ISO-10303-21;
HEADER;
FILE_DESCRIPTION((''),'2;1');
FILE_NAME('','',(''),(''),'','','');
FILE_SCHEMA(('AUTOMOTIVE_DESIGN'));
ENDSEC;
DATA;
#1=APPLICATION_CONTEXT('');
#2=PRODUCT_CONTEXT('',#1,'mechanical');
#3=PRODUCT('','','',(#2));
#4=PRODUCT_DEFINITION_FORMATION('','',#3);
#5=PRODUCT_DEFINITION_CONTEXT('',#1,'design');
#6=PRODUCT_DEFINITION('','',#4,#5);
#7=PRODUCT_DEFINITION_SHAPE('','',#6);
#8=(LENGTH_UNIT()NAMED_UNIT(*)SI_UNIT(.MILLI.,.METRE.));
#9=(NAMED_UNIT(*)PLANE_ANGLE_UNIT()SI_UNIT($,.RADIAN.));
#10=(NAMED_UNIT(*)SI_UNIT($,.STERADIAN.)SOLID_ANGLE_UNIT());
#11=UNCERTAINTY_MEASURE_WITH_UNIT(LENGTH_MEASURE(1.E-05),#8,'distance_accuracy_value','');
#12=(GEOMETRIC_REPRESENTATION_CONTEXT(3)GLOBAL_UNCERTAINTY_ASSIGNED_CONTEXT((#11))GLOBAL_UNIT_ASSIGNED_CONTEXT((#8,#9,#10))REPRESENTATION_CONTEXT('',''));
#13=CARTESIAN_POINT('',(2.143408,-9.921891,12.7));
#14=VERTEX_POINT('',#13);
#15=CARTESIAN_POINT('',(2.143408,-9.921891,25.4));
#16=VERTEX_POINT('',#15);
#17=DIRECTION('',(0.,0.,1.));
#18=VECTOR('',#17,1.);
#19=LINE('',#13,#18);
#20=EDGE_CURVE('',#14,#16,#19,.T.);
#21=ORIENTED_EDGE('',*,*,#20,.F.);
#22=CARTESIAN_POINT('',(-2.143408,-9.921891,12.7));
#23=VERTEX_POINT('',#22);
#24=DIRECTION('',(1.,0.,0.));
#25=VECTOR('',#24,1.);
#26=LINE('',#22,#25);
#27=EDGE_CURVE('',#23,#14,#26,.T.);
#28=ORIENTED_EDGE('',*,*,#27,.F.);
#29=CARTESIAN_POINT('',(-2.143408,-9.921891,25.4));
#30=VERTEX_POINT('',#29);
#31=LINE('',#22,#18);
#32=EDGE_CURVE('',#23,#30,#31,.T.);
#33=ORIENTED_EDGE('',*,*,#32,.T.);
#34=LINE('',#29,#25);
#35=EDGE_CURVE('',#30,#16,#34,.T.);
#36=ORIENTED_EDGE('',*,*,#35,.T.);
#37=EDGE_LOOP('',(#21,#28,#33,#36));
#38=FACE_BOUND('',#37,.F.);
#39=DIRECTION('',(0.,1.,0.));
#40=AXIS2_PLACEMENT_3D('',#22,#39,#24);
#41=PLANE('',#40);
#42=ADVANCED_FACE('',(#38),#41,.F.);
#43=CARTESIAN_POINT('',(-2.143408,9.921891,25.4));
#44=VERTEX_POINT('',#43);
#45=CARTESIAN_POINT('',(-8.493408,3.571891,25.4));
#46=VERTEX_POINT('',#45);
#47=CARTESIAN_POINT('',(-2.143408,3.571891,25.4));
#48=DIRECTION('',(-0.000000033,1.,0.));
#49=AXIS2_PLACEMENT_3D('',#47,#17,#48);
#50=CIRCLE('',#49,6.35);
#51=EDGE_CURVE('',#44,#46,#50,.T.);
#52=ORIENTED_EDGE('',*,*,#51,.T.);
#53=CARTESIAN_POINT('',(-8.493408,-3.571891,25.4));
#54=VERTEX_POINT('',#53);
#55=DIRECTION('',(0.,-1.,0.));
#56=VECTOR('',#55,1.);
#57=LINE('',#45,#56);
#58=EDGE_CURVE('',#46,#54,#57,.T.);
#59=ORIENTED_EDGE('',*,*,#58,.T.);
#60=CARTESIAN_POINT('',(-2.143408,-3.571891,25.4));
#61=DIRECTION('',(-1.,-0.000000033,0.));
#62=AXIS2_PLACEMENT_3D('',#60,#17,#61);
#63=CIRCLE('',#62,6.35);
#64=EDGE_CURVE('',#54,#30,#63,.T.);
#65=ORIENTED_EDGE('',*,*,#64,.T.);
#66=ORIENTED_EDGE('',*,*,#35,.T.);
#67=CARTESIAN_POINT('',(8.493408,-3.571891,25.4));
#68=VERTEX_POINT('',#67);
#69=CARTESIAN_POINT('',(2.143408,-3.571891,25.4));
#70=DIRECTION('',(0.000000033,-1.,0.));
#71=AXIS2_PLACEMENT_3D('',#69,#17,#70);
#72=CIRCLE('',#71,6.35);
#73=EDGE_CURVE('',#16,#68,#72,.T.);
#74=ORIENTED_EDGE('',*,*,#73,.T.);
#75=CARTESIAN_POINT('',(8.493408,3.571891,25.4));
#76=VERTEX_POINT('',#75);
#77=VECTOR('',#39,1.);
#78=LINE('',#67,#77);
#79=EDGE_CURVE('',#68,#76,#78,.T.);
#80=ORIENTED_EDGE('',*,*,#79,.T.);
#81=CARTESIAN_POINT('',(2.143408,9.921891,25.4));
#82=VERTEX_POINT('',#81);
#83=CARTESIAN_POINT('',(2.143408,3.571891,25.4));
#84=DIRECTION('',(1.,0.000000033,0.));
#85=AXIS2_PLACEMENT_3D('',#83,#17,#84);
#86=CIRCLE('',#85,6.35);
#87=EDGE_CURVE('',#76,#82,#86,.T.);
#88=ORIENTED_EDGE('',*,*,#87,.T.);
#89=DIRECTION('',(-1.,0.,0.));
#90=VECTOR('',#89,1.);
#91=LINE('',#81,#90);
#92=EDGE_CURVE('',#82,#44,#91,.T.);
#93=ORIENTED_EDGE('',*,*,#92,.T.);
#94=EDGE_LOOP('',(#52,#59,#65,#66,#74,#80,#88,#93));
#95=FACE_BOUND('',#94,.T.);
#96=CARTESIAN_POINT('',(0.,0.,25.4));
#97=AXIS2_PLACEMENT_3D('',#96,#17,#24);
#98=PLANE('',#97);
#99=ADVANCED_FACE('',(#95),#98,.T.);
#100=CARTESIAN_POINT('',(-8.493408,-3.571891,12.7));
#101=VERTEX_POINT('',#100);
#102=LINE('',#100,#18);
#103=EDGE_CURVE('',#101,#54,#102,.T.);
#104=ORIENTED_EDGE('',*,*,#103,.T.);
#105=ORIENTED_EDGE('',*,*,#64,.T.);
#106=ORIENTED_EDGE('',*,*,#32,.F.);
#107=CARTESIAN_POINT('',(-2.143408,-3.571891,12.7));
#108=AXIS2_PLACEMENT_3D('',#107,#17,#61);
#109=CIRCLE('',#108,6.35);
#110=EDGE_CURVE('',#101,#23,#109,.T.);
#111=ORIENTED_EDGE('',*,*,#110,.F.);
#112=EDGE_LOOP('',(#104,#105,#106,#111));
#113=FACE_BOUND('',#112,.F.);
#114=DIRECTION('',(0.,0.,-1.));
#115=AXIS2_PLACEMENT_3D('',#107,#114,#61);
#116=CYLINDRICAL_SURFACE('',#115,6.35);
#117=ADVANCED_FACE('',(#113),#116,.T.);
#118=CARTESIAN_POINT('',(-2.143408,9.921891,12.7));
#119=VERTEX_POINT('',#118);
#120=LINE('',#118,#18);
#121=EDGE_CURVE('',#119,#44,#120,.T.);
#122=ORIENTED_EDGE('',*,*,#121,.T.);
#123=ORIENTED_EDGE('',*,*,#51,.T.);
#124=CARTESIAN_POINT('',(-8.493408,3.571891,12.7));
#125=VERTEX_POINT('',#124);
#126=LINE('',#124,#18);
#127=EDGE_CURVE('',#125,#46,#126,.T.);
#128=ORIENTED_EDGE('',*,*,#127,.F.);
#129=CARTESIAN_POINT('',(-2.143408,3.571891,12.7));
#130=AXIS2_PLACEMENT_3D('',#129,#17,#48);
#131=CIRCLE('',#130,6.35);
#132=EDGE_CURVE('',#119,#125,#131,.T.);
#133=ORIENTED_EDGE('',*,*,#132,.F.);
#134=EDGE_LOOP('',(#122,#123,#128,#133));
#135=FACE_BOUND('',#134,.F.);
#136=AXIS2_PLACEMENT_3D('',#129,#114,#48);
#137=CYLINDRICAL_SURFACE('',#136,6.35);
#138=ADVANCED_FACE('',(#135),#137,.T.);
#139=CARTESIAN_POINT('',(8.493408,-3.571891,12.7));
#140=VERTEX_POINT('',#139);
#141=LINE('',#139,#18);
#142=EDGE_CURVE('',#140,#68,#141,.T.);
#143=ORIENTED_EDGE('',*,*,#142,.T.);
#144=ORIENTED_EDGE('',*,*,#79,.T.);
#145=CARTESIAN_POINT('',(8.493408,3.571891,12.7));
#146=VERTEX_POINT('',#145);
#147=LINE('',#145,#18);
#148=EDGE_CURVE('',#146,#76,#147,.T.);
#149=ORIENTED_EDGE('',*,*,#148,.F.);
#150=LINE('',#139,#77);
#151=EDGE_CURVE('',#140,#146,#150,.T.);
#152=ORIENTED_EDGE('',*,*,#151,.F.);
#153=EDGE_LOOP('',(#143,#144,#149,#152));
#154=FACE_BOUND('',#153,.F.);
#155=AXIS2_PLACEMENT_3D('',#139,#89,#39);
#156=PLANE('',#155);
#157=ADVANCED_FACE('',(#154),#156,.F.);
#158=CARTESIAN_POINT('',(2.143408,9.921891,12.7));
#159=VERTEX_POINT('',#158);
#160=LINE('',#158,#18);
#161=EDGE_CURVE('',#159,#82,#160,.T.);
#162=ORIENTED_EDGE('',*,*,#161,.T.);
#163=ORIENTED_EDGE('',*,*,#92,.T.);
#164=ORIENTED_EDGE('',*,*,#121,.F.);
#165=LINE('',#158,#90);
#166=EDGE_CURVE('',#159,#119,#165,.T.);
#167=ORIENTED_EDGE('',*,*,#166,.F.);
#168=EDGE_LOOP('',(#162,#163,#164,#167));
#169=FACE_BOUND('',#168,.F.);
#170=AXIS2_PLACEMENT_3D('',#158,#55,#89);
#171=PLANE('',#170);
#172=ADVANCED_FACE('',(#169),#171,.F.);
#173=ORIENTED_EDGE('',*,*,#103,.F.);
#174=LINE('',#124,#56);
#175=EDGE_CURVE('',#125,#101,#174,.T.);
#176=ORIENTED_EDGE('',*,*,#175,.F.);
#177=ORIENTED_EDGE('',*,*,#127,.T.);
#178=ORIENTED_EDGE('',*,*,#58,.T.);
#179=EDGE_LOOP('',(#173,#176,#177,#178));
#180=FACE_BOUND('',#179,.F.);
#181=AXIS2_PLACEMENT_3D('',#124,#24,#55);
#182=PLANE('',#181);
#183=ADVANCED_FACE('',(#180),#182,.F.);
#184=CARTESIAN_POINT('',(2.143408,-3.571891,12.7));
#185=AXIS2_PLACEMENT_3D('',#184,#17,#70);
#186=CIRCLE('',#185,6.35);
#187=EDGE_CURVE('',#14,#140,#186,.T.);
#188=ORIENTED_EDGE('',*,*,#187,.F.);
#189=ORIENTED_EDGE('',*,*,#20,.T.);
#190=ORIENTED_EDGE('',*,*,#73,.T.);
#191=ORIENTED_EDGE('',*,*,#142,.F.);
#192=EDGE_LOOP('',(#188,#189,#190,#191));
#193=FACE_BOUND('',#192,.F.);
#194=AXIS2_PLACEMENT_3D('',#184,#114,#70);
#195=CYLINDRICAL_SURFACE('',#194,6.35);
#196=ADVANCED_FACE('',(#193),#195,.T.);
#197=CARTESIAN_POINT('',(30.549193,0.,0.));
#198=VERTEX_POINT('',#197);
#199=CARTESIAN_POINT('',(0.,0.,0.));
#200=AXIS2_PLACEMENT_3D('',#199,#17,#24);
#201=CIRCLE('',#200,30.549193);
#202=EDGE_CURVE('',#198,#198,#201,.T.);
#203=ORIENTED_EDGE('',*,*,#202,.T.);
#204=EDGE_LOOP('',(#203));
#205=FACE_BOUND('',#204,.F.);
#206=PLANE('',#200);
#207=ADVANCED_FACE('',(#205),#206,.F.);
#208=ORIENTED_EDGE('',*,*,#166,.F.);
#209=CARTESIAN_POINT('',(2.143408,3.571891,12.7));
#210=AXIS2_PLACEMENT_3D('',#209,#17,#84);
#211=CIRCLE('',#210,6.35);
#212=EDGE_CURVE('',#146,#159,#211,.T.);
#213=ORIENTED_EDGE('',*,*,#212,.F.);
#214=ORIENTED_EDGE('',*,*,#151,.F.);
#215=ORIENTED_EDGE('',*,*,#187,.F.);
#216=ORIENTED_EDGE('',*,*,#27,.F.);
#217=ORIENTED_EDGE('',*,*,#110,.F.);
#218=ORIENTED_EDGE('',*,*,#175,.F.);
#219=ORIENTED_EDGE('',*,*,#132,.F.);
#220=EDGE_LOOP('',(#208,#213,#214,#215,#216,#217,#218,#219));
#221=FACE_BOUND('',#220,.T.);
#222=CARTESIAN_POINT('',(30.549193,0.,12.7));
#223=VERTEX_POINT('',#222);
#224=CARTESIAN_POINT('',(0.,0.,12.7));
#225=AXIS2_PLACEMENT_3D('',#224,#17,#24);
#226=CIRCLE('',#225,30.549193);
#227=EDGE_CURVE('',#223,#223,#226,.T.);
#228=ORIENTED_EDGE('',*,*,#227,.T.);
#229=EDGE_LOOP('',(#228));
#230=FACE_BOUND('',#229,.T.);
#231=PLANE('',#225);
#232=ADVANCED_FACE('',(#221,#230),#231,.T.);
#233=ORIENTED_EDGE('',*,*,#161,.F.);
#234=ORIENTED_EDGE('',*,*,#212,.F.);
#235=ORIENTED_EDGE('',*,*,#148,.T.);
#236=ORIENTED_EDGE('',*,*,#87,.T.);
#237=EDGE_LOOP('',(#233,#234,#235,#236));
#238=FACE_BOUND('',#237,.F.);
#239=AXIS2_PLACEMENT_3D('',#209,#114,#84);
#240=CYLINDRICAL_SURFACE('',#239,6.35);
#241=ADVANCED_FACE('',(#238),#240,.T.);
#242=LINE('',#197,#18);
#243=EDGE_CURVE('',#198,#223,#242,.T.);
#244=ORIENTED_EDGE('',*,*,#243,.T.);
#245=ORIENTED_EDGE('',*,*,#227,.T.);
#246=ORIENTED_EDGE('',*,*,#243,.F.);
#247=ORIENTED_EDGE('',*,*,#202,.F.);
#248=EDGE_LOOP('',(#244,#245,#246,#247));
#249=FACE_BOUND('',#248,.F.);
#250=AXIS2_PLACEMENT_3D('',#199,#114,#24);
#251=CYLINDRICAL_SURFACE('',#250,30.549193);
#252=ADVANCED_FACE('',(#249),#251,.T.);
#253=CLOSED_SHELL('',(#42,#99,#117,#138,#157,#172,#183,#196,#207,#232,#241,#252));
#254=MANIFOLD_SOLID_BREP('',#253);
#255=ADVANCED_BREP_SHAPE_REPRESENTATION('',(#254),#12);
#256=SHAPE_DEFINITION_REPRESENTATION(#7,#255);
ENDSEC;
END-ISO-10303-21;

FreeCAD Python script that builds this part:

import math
import FreeCAD as App
import Part
import Sketcher

V = App.Vector
Q = App.Units.Quantity

doc = App.newDocument("Part")
body = doc.addObject("PartDesign::Body", "Body")

# Sketch on XY plane
sketch1 = doc.addObject("Sketcher::SketchObject", "Sketch")
body.addObject(sketch1)
sketch1.AttachmentSupport = (doc.XY_Plane, [""])
sketch1.MapMode = "FlatFace"
sketch1.addGeometry(Part.Circle(V(0, 0, 0), V(0, 0, 1), 31), False)
sketch1.addConstraint(Sketcher.Constraint("Coincident", 0, 3, -1, 1))
sketch1.addConstraint(Sketcher.Constraint("Diameter", 0, Q("61.098386 mm")))
pad1 = doc.addObject("PartDesign::Pad", "Pad")
body.addObject(pad1)
pad1.Profile = sketch1
pad1.Length = Q("0.5 in")

# Sketch on XY plane
sketch2 = doc.addObject("Sketcher::SketchObject", "Sketch001")
body.addObject(sketch2)
sketch2.AttachmentSupport = (doc.XY_Plane, [""])
sketch2.MapMode = "FlatFace"
sketch2.AttachmentOffset = App.Placement(V(0, 0, 0.5 * 25.4), App.Rotation())
sketch2.addGeometry(Part.ArcOfCircle(Part.Circle(V(2.1, 3.6, 0), V(0, 0, 1), 6.4), math.radians(0), math.radians(90)), False)
sketch2.addGeometry(Part.LineSegment(V(2.1, 9.9, 0), V(-2.1, 9.9, 0)), False)
sketch2.addGeometry(Part.ArcOfCircle(Part.Circle(V(-2.1, 3.6, 0), V(0, 0, 1), 6.4), math.radians(90), math.radians(180)), False)
sketch2.addGeometry(Part.LineSegment(V(-8.5, 3.6, 0), V(-8.5, -3.6, 0)), False)
sketch2.addGeometry(Part.ArcOfCircle(Part.Circle(V(-2.1, -3.6, 0), V(0, 0, 1), 6.4), math.radians(-180), math.radians(-90)), False)
sketch2.addGeometry(Part.LineSegment(V(-2.1, -9.9, 0), V(2.1, -9.9, 0)), False)
sketch2.addGeometry(Part.ArcOfCircle(Part.Circle(V(2.1, -3.6, 0), V(0, 0, 1), 6.4), math.radians(-90), math.radians(0)), False)
sketch2.addGeometry(Part.LineSegment(V(8.5, -3.6, 0), V(8.5, 3.6, 0)), False)
sketch2.addConstraint(Sketcher.Constraint("Tangent", 0, 2, 1, 1))
sketch2.addConstraint(Sketcher.Constraint("Tangent", 1, 2, 2, 1))
sketch2.addConstraint(Sketcher.Constraint("Tangent", 2, 2, 3, 1))
sketch2.addConstraint(Sketcher.Constraint("Tangent", 3, 2, 4, 1))
sketch2.addConstraint(Sketcher.Constraint("Tangent", 4, 2, 5, 1))
sketch2.addConstraint(Sketcher.Constraint("Tangent", 5, 2, 6, 1))
sketch2.addConstraint(Sketcher.Constraint("Tangent", 6, 2, 7, 1))
sketch2.addConstraint(Sketcher.Constraint("Tangent", 7, 2, 0, 1))
sketch2.addConstraint(Sketcher.Constraint("Horizontal", 1))
sketch2.addConstraint(Sketcher.Constraint("Vertical", 3))
sketch2.addConstraint(Sketcher.Constraint("Horizontal", 5))
sketch2.addConstraint(Sketcher.Constraint("Vertical", 7))
sketch2.addConstraint(Sketcher.Constraint("Equal", 0, 2))
sketch2.addConstraint(Sketcher.Constraint("Equal", 2, 4))
sketch2.addConstraint(Sketcher.Constraint("Equal", 4, 6))
sketch2.addConstraint(Sketcher.Constraint("Symmetric", 0, 3, 4, 3, -1, 1))
sketch2.addConstraint(Sketcher.Constraint("Radius", 0, Q("0.25 in")))
sketch2.addConstraint(Sketcher.Constraint("DistanceX", 1, 2, 1, 1, Q("4.286816 mm")))
sketch2.addConstraint(Sketcher.Constraint("DistanceY", 3, 2, 3, 1, Q("7.143782 mm")))
pad2 = doc.addObject("PartDesign::Pad", "Pad001")
body.addObject(pad2)
pad2.Profile = sketch2
pad2.Length = Q("0.5 in")

doc.recompute()
